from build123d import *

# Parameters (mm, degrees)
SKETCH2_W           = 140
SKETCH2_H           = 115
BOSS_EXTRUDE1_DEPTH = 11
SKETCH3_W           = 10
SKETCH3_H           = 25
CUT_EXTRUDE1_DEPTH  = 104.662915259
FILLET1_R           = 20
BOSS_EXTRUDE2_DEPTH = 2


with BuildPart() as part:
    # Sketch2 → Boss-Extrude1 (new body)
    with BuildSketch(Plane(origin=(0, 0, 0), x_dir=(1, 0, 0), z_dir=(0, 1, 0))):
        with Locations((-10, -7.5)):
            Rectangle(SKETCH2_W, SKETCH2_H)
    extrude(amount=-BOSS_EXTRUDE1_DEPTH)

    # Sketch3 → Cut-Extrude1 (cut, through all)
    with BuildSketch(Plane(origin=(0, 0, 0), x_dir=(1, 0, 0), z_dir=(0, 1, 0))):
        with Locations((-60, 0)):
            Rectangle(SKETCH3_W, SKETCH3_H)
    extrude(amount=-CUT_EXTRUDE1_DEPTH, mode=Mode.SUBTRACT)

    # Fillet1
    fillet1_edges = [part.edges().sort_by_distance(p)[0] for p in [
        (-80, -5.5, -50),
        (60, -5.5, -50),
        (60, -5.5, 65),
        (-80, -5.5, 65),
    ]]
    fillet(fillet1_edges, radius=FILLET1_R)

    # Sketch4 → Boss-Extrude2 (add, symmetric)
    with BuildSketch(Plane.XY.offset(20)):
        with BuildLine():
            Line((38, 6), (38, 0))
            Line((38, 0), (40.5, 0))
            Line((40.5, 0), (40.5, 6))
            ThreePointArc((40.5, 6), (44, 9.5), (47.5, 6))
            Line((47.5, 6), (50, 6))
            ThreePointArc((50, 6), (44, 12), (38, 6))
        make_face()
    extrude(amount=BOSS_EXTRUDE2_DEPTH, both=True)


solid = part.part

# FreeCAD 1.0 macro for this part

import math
import FreeCAD as App
import Part
import Sketcher

V = App.Vector
Q = App.Units.Quantity


def edges_at(feature, points):
    """Names of the edges that pass closest to the given points."""
    edges = feature.Shape.Edges
    near = lambda p: min(range(len(edges)), key=lambda i: edges[i].distToShape(Part.Vertex(*p))[0])
    return sorted({f"Edge{near(p) + 1}" for p in points})

doc = App.newDocument("Part")
body = doc.addObject("PartDesign::Body", "Body")

sketch1 = body.newObject("Sketcher::SketchObject", "Sketch")
sketch1.AttachmentSupport = (doc.getObject("XZ_Plane"), [""])
sketch1.MapMode = "FlatFace"
sketch1.addGeometry([
    Part.LineSegment(V(-80, -50, 0), V(-80, 65, 0)),
    Part.LineSegment(V(-80, 65, 0), V(60, 65, 0)),
    Part.LineSegment(V(60, 65, 0), V(60, -50, 0)),
    Part.LineSegment(V(60, -50, 0), V(-80, -50, 0)),
], False)
sketch1.addConstraint([
    Sketcher.Constraint("Coincident", 0, 2, 1, 1),
    Sketcher.Constraint("Coincident", 1, 2, 2, 1),
    Sketcher.Constraint("Coincident", 2, 2, 3, 1),
    Sketcher.Constraint("Coincident", 3, 2, 0, 1),
    Sketcher.Constraint("Vertical", 0),
    Sketcher.Constraint("Horizontal", 1),
    Sketcher.Constraint("Vertical", 2),
    Sketcher.Constraint("Horizontal", 3),
    Sketcher.Constraint("DistanceX", 1, 1, 1, 2, Q("140 mm")),
    Sketcher.Constraint("DistanceY", 0, 1, 0, 2, Q("115 mm")),
    Sketcher.Constraint("DistanceX", 0, 2, -1, 1, Q("80 mm")),
    Sketcher.Constraint("DistanceY", -1, 1, 0, 2, Q("65 mm")),
])
pad1 = body.newObject("PartDesign::Pad", "Pad")
pad1.Profile = sketch1
pad1.Length = 11

sketch2 = body.newObject("Sketcher::SketchObject", "Sketch001")
sketch2.AttachmentSupport = (doc.getObject("XZ_Plane"), [""])
sketch2.MapMode = "FlatFace"
sketch2.addGeometry([
    Part.LineSegment(V(-65, -12.5, 0), V(-65, 12.5, 0)),
    Part.LineSegment(V(-65, 12.5, 0), V(-55, 12.5, 0)),
    Part.LineSegment(V(-55, 12.5, 0), V(-55, -12.5, 0)),
    Part.LineSegment(V(-55, -12.5, 0), V(-65, -12.5, 0)),
], False)
sketch2.addConstraint([
    Sketcher.Constraint("Coincident", 0, 2, 1, 1),
    Sketcher.Constraint("Coincident", 1, 2, 2, 1),
    Sketcher.Constraint("Coincident", 2, 2, 3, 1),
    Sketcher.Constraint("Coincident", 3, 2, 0, 1),
    Sketcher.Constraint("Vertical", 0),
    Sketcher.Constraint("Horizontal", 1),
    Sketcher.Constraint("Vertical", 2),
    Sketcher.Constraint("Horizontal", 3),
    Sketcher.Constraint("DistanceX", 1, 1, 1, 2, Q("10 mm")),
    Sketcher.Constraint("DistanceY", 0, 1, 0, 2, Q("25 mm")),
    Sketcher.Constraint("DistanceX", 0, 2, -1, 1, Q("65 mm")),
    Sketcher.Constraint("DistanceY", -1, 1, 0, 2, Q("12.5 mm")),
])
pocket1 = body.newObject("PartDesign::Pocket", "Pocket")
pocket1.Profile = sketch2
pocket1.Type = "ThroughAll"
pocket1.Reversed = True
doc.recompute()

fillet = body.newObject("PartDesign::Fillet", "Fillet")
fillet.Base = (pocket1, edges_at(pocket1, [
    (-80, -5.5, -50),
    (60, -5.5, -50),
    (60, -5.5, 65),
    (-80, -5.5, 65),
]))
fillet.Radius = 20

sketch3 = body.newObject("Sketcher::SketchObject", "Sketch002")
sketch3.AttachmentSupport = (doc.getObject("XY_Plane"), [""])
sketch3.MapMode = "FlatFace"
sketch3.AttachmentOffset = App.Placement(V(0, 0, 20), App.Rotation())
sketch3.addGeometry([
    Part.LineSegment(V(38, 6, 0), V(38, 0, 0)),
    Part.LineSegment(V(38, 0, 0), V(40.5, 0, 0)),
    Part.LineSegment(V(40.5, 0, 0), V(40.5, 6, 0)),
    Part.ArcOfCircle(Part.Circle(V(44, 6, 0), V(0, 0, 1), 3.5), math.radians(0), math.radians(180)),
    Part.LineSegment(V(47.5, 6, 0), V(50, 6, 0)),
    Part.ArcOfCircle(Part.Circle(V(44, 6, 0), V(0, 0, 1), 6), math.radians(0), math.radians(180)),
], False)
sketch3.addConstraint([
    Sketcher.Constraint("Coincident", 0, 2, 1, 1),
    Sketcher.Constraint("Coincident", 1, 2, 2, 1),
    Sketcher.Constraint("Tangent", 2, 2, 3, 2),
    Sketcher.Constraint("Coincident", 3, 1, 4, 1),
    Sketcher.Constraint("Coincident", 4, 2, 5, 1),
    Sketcher.Constraint("Tangent", 5, 2, 0, 1),
    Sketcher.Constraint("Vertical", 0),
    Sketcher.Constraint("Horizontal", 1),
    Sketcher.Constraint("Vertical", 2),
    Sketcher.Constraint("Horizontal", 4),
    Sketcher.Constraint("Coincident", 5, 3, 3, 3),
    Sketcher.Constraint("PointOnObject", 0, 2, -1),
    Sketcher.Constraint("Horizontal", 2, 2, 3, 1),
    Sketcher.Constraint("Radius", 5, Q("6 mm")),
    Sketcher.Constraint("Radius", 3, Q("3.5 mm")),
    Sketcher.Constraint("DistanceY", 0, 2, 0, 1, Q("6 mm")),
    Sketcher.Constraint("DistanceX", -1, 1, 3, 3, Q("44 mm")),
])
pad2 = body.newObject("PartDesign::Pad", "Pad001")
pad2.Profile = sketch3
pad2.Length = 4
pad2.Midplane = True

doc.recompute()
